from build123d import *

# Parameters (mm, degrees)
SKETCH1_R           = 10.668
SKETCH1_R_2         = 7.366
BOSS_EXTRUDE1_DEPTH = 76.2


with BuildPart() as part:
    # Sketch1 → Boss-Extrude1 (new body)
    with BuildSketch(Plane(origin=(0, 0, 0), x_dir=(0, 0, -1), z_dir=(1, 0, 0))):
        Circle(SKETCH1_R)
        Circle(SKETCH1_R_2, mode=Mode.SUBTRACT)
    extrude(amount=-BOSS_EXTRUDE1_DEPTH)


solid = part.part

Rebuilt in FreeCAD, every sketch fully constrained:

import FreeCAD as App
import Part
import Sketcher

V = App.Vector
Q = App.Units.Quantity

doc = App.newDocument("Part")
body = doc.addObject("PartDesign::Body", "Body")

sketch1 = body.newObject("Sketcher::SketchObject", "Sketch")
sketch1.AttachmentSupport = (doc.getObject("YZ_Plane"), [""])
sketch1.MapMode = "FlatFace"
sketch1.addGeometry(Part.Circle(V(0, 0, 0), V(0, 0, 1), 11), False)
sketch1.addGeometry(Part.Circle(V(0, 0, 0), V(0, 0, 1), 7), False)
sketch1.addConstraint(Sketcher.Constraint("Coincident", 0, 3, -1, 1))
sketch1.addConstraint(Sketcher.Constraint("Coincident", 1, 3, -1, 1))
sketch1.addConstraint(Sketcher.Constraint("Diameter", 0, Q("0.84 in")))
sketch1.addConstraint(Sketcher.Constraint("Diameter", 1, Q("0.58 in")))
pad1 = body.newObject("PartDesign::Pad", "Pad")
pad1.Profile = sketch1
pad1.Length = Q("3 in")
pad1.Reversed = True

doc.recompute()
